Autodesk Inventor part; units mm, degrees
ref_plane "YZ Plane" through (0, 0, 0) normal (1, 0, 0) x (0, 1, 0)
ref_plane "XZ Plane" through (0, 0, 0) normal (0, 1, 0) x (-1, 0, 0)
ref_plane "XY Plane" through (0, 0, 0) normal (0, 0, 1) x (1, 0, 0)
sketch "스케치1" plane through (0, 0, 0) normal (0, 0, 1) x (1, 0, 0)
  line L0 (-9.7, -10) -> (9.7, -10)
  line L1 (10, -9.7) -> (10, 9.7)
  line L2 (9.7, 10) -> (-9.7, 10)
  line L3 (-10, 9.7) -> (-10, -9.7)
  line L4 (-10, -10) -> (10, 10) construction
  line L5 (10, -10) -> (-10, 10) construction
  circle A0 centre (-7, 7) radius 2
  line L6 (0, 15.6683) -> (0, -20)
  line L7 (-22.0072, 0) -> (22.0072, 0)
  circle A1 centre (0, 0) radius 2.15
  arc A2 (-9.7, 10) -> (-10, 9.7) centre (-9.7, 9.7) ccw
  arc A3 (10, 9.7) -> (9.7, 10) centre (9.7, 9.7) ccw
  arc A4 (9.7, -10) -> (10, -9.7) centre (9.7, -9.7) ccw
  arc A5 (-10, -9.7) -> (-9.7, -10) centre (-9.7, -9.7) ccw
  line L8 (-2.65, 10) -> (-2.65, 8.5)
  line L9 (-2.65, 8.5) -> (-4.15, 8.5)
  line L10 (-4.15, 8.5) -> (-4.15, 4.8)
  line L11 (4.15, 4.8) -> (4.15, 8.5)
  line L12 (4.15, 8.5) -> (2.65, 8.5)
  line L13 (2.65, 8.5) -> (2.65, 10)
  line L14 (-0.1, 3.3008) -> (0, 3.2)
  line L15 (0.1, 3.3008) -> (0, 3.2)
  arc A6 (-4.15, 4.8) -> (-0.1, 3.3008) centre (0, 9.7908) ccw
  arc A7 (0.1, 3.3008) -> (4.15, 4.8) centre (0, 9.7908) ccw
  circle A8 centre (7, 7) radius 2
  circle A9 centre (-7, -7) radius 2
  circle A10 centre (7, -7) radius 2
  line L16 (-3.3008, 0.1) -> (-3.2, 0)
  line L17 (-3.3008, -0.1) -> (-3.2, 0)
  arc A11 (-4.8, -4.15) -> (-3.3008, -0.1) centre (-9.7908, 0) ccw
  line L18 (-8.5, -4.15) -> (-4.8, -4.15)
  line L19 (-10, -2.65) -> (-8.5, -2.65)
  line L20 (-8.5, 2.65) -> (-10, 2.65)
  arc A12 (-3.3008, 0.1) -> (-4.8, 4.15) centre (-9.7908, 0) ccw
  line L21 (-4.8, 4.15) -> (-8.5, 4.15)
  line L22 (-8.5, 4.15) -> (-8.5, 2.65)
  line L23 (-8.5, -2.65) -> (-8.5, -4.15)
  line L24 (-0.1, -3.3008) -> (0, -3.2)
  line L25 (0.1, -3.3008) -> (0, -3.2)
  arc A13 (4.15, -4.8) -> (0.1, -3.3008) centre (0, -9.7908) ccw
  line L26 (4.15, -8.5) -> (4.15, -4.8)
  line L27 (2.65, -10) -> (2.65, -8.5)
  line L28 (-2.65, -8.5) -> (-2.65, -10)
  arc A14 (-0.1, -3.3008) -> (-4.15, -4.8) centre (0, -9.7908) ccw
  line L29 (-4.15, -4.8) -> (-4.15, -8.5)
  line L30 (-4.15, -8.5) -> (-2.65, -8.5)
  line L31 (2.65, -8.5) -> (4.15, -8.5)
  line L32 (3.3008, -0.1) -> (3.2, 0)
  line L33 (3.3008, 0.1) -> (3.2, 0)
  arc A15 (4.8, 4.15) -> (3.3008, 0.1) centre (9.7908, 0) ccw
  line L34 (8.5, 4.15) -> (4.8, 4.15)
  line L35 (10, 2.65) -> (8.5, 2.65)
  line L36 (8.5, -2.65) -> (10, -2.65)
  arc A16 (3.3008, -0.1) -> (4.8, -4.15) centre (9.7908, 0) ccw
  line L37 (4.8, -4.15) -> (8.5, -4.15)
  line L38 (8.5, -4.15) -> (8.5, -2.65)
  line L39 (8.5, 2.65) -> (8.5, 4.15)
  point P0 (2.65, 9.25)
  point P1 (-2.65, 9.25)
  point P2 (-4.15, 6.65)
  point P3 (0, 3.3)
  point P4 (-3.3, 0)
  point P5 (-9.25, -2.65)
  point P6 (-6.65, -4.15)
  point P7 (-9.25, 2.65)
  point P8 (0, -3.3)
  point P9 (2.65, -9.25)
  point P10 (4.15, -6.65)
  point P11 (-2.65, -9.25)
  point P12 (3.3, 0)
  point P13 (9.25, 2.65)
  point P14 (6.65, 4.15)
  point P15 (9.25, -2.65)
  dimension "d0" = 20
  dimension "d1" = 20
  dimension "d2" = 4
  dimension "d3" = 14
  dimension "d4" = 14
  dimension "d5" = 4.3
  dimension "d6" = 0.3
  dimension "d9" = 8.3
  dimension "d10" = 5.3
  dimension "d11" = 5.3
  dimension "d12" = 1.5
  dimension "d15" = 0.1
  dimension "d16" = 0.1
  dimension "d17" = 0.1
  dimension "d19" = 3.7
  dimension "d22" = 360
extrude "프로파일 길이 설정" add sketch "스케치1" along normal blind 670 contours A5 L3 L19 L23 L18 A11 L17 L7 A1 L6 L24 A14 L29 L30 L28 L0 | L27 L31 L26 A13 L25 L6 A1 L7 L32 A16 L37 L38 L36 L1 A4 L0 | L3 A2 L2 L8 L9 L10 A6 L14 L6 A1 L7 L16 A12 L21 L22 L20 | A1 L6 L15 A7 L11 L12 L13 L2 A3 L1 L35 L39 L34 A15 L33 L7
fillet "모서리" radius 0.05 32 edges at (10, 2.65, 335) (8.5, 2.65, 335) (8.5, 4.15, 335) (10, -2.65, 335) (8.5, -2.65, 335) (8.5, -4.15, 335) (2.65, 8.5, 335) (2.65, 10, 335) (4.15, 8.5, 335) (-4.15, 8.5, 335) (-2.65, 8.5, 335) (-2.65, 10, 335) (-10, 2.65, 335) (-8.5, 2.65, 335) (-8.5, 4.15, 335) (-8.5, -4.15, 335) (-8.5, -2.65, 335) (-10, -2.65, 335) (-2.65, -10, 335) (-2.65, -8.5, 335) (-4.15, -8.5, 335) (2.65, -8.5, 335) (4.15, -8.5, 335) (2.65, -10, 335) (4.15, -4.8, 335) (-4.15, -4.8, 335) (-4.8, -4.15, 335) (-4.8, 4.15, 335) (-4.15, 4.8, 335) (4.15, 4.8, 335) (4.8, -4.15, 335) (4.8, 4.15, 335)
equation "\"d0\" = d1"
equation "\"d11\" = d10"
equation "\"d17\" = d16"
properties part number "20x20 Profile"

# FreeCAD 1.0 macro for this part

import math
import FreeCAD as App
import Part
import Sketcher


def edges_at(feature, points):
    """Names of the edges that pass closest to the given points."""
    edges = feature.Shape.Edges
    near = lambda p: min(range(len(edges)), key=lambda i: edges[i].distToShape(Part.Vertex(*p))[0])
    return sorted({f"Edge{near(p) + 1}" for p in points})

doc = App.newDocument("Part")
params = doc.addObject("Spreadsheet::Sheet", "Params")
for row, (alias, value) in enumerate([
    ("sketch1_diameter", "4 mm"),
    ("sketch1_diameter2", "4.3 mm"),
    ("sketch1_radius", "0.3 mm"),
    ("sketch1_width", "1.5 mm"),
    ("sketch1_width2", "3.7 mm"),
    ("pad1_length", "670 mm"),
    ("fillet_radius", "0.05 mm"),
], start=1):
    params.set(f"A{row}", alias)
    params.set(f"B{row}", "=" + value)
    params.setAlias(f"B{row}", alias)

body = doc.addObject("PartDesign::Body", "Body")

# Sketch on XY plane
sketch1 = body.newObject("Sketcher::SketchObject", "Sketch")
sketch1.AttachmentSupport = (doc.getObject("XY_Plane"), [""])
sketch1.MapMode = "FlatFace"
sketch1.addGeometry([
    Part.ArcOfCircle(Part.Circle(App.Vector(-9.7, -9.7, 0), App.Vector(0, 0, 1), 0.3), math.radians(180), math.radians(270)),  # 0
    Part.LineSegment(App.Vector(-9.7, -10, 0), App.Vector(-2.65, -10, 0)),  # 1
    Part.LineSegment(App.Vector(-2.65, -10, 0), App.Vector(-2.65, -8.5, 0)),  # 2
    Part.LineSegment(App.Vector(-2.65, -8.5, 0), App.Vector(-4.15, -8.5, 0)),  # 3
    Part.LineSegment(App.Vector(-4.15, -8.5, 0), App.Vector(-4.15, -4.8, 0)),  # 4
    Part.ArcOfCircle(Part.Circle(App.Vector(0, -9.7908, 0), App.Vector(0, 0, 1), 6.490808), math.radians(90.882762), math.radians(129.74454)),  # 5
    Part.LineSegment(App.Vector(-0.1, -3.3008, 0), App.Vector(0, -3.2, 0)),  # 6
    Part.LineSegment(App.Vector(0, -3.2, 0), App.Vector(0.1, -3.3008, 0)),  # 7
    Part.ArcOfCircle(Part.Circle(App.Vector(0, -9.7908, 0), App.Vector(0, 0, 1), 6.49077), math.radians(50.25546), math.radians(89.117238)),  # 8
    Part.LineSegment(App.Vector(4.15, -4.8, 0), App.Vector(4.15, -8.5, 0)),  # 9
    Part.LineSegment(App.Vector(4.15, -8.5, 0), App.Vector(2.65, -8.5, 0)),  # 10
    Part.LineSegment(App.Vector(2.65, -8.5, 0), App.Vector(2.65, -10, 0)),  # 11
    Part.LineSegment(App.Vector(2.65, -10, 0), App.Vector(9.7, -10, 0)),  # 12
    Part.ArcOfCircle(Part.Circle(App.Vector(9.7, -9.7, 0), App.Vector(0, 0, 1), 0.3), math.radians(-90), math.radians(0)),  # 13
    Part.LineSegment(App.Vector(10, -9.7, 0), App.Vector(10, -2.65, 0)),  # 14
    Part.LineSegment(App.Vector(10, -2.65, 0), App.Vector(8.5, -2.65, 0)),  # 15
    Part.LineSegment(App.Vector(8.5, -2.65, 0), App.Vector(8.5, -4.15, 0)),  # 16
    Part.LineSegment(App.Vector(8.5, -4.15, 0), App.Vector(4.8, -4.15, 0)),  # 17
    Part.ArcOfCircle(Part.Circle(App.Vector(9.7908, 0, 0), App.Vector(0, 0, 1), 6.490808), math.radians(-179.117238), math.radians(-140.25546)),  # 18
    Part.LineSegment(App.Vector(3.3008, -0.1, 0), App.Vector(3.2, 0, 0)),  # 19
    Part.LineSegment(App.Vector(3.2, 0, 0), App.Vector(3.3008, 0.1, 0)),  # 20
    Part.ArcOfCircle(Part.Circle(App.Vector(9.7908, 0, 0), App.Vector(0, 0, 1), 6.49077), math.radians(140.25546), math.radians(179.117238)),  # 21
    Part.LineSegment(App.Vector(4.8, 4.15, 0), App.Vector(8.5, 4.15, 0)),  # 22
    Part.LineSegment(App.Vector(8.5, 4.15, 0), App.Vector(8.5, 2.65, 0)),  # 23
    Part.LineSegment(App.Vector(8.5, 2.65, 0), App.Vector(10, 2.65, 0)),  # 24
    Part.LineSegment(App.Vector(10, 2.65, 0), App.Vector(10, 9.7, 0)),  # 25
    Part.ArcOfCircle(Part.Circle(App.Vector(9.7, 9.7, 0), App.Vector(0, 0, 1), 0.3), math.radians(0), math.radians(90)),  # 26
    Part.LineSegment(App.Vector(9.7, 10, 0), App.Vector(2.65, 10, 0)),  # 27
    Part.LineSegment(App.Vector(2.65, 10, 0), App.Vector(2.65, 8.5, 0)),  # 28
    Part.LineSegment(App.Vector(2.65, 8.5, 0), App.Vector(4.15, 8.5, 0)),  # 29
    Part.LineSegment(App.Vector(4.15, 8.5, 0), App.Vector(4.15, 4.8, 0)),  # 30
    Part.ArcOfCircle(Part.Circle(App.Vector(0, 9.7908, 0), App.Vector(0, 0, 1), 6.490808), math.radians(-89.117238), math.radians(-50.25546)),  # 31
    Part.LineSegment(App.Vector(0.1, 3.3008, 0), App.Vector(0, 3.2, 0)),  # 32
    Part.LineSegment(App.Vector(0, 3.2, 0), App.Vector(-0.1, 3.3008, 0)),  # 33
    Part.ArcOfCircle(Part.Circle(App.Vector(0, 9.7908, 0), App.Vector(0, 0, 1), 6.49077), math.radians(-129.74454), math.radians(-90.882762)),  # 34
    Part.LineSegment(App.Vector(-4.15, 4.8, 0), App.Vector(-4.15, 8.5, 0)),  # 35
    Part.LineSegment(App.Vector(-4.15, 8.5, 0), App.Vector(-2.65, 8.5, 0)),  # 36
    Part.LineSegment(App.Vector(-2.65, 8.5, 0), App.Vector(-2.65, 10, 0)),  # 37
    Part.LineSegment(App.Vector(-2.65, 10, 0), App.Vector(-9.7, 10, 0)),  # 38
    Part.ArcOfCircle(Part.Circle(App.Vector(-9.7, 9.7, 0), App.Vector(0, 0, 1), 0.3), math.radians(90), math.radians(180)),  # 39
    Part.LineSegment(App.Vector(-10, 9.7, 0), App.Vector(-10, 2.65, 0)),  # 40
    Part.LineSegment(App.Vector(-10, 2.65, 0), App.Vector(-8.5, 2.65, 0)),  # 41
    Part.LineSegment(App.Vector(-8.5, 2.65, 0), App.Vector(-8.5, 4.15, 0)),  # 42
    Part.LineSegment(App.Vector(-8.5, 4.15, 0), App.Vector(-4.8, 4.15, 0)),  # 43
    Part.ArcOfCircle(Part.Circle(App.Vector(-9.7908, 0, 0), App.Vector(0, 0, 1), 6.490808), math.radians(0.882762), math.radians(39.74454)),  # 44
    Part.LineSegment(App.Vector(-3.3008, 0.1, 0), App.Vector(-3.2, 0, 0)),  # 45
    Part.LineSegment(App.Vector(-3.2, 0, 0), App.Vector(-3.3008, -0.1, 0)),  # 46
    Part.ArcOfCircle(Part.Circle(App.Vector(-9.7908, 0, 0), App.Vector(0, 0, 1), 6.49077), math.radians(-39.74454), math.radians(-0.882762)),  # 47
    Part.LineSegment(App.Vector(-4.8, -4.15, 0), App.Vector(-8.5, -4.15, 0)),  # 48
    Part.LineSegment(App.Vector(-8.5, -4.15, 0), App.Vector(-8.5, -2.65, 0)),  # 49
    Part.LineSegment(App.Vector(-8.5, -2.65, 0), App.Vector(-10, -2.65, 0)),  # 50
    Part.LineSegment(App.Vector(-10, -2.65, 0), App.Vector(-10, -9.7, 0)),  # 51
    Part.Circle(App.Vector(0, 0, 0), App.Vector(0, 0, 1), 2.15),  # 52
    Part.Circle(App.Vector(-7, -7, 0), App.Vector(0, 0, 1), 2),  # 53
    Part.Circle(App.Vector(-7, 7, 0), App.Vector(0, 0, 1), 2),  # 54
    Part.Circle(App.Vector(7, -7, 0), App.Vector(0, 0, 1), 2),  # 55
    Part.Circle(App.Vector(7, 7, 0), App.Vector(0, 0, 1), 2),  # 56
], False)
sketch1.addConstraint([
    Sketcher.Constraint("Tangent", 0, 2, 1, 1),
    Sketcher.Constraint("Coincident", 1, 2, 2, 1),
    Sketcher.Constraint("Coincident", 2, 2, 3, 1),
    Sketcher.Constraint("Coincident", 3, 2, 4, 1),
    Sketcher.Constraint("Coincident", 4, 2, 5, 2),
    Sketcher.Constraint("Coincident", 5, 1, 6, 1),
    Sketcher.Constraint("Coincident", 6, 2, 7, 1),
    Sketcher.Constraint("Coincident", 7, 2, 8, 2),
    Sketcher.Constraint("Coincident", 8, 1, 9, 1),
    Sketcher.Constraint("Coincident", 9, 2, 10, 1),
    Sketcher.Constraint("Coincident", 10, 2, 11, 1),
    Sketcher.Constraint("Coincident", 11, 2, 12, 1),
    Sketcher.Constraint("Tangent", 12, 2, 13, 1),
    Sketcher.Constraint("Tangent", 13, 2, 14, 1),
    Sketcher.Constraint("Coincident", 14, 2, 15, 1),
    Sketcher.Constraint("Coincident", 15, 2, 16, 1),
    Sketcher.Constraint("Coincident", 16, 2, 17, 1),
    Sketcher.Constraint("Coincident", 17, 2, 18, 2),
    Sketcher.Constraint("Coincident", 18, 1, 19, 1),
    Sketcher.Constraint("Coincident", 19, 2, 20, 1),
    Sketcher.Constraint("Coincident", 20, 2, 21, 2),
    Sketcher.Constraint("Coincident", 21, 1, 22, 1),
    Sketcher.Constraint("Coincident", 22, 2, 23, 1),
    Sketcher.Constraint("Coincident", 23, 2, 24, 1),
    Sketcher.Constraint("Coincident", 24, 2, 25, 1),
    Sketcher.Constraint("Tangent", 25, 2, 26, 1),
    Sketcher.Constraint("Tangent", 26, 2, 27, 1),
    Sketcher.Constraint("Coincident", 27, 2, 28, 1),
    Sketcher.Constraint("Coincident", 28, 2, 29, 1),
    Sketcher.Constraint("Coincident", 29, 2, 30, 1),
    Sketcher.Constraint("Coincident", 30, 2, 31, 2),
    Sketcher.Constraint("Coincident", 31, 1, 32, 1),
    Sketcher.Constraint("Coincident", 32, 2, 33, 1),
    Sketcher.Constraint("Coincident", 33, 2, 34, 2),
    Sketcher.Constraint("Coincident", 34, 1, 35, 1),
    Sketcher.Constraint("Coincident", 35, 2, 36, 1),
    Sketcher.Constraint("Coincident", 36, 2, 37, 1),
    Sketcher.Constraint("Coincident", 37, 2, 38, 1),
    Sketcher.Constraint("Tangent", 38, 2, 39, 1),
    Sketcher.Constraint("Tangent", 39, 2, 40, 1),
    Sketcher.Constraint("Coincident", 40, 2, 41, 1),
    Sketcher.Constraint("Coincident", 41, 2, 42, 1),
    Sketcher.Constraint("Coincident", 42, 2, 43, 1),
    Sketcher.Constraint("Coincident", 43, 2, 44, 2),
    Sketcher.Constraint("Coincident", 44, 1, 45, 1),
    Sketcher.Constraint("Coincident", 45, 2, 46, 1),
    Sketcher.Constraint("Coincident", 46, 2, 47, 2),
    Sketcher.Constraint("Coincident", 47, 1, 48, 1),
    Sketcher.Constraint("Coincident", 48, 2, 49, 1),
    Sketcher.Constraint("Coincident", 49, 2, 50, 1),
    Sketcher.Constraint("Coincident", 50, 2, 51, 1),
    Sketcher.Constraint("Tangent", 51, 2, 0, 1),
    Sketcher.Constraint("Horizontal", 1),
    Sketcher.Constraint("Vertical", 2),
    Sketcher.Constraint("Horizontal", 3),
    Sketcher.Constraint("Vertical", 4),
    Sketcher.Constraint("Vertical", 9),
    Sketcher.Constraint("Horizontal", 10),
    Sketcher.Constraint("Vertical", 11),
    Sketcher.Constraint("Horizontal", 12),
    Sketcher.Constraint("Vertical", 14),
    Sketcher.Constraint("Horizontal", 15),
    Sketcher.Constraint("Vertical", 16),
    Sketcher.Constraint("Horizontal", 17),
    Sketcher.Constraint("Horizontal", 22),
    Sketcher.Constraint("Vertical", 23),
    Sketcher.Constraint("Horizontal", 24),
    Sketcher.Constraint("Vertical", 25),
    Sketcher.Constraint("Horizontal", 27),
    Sketcher.Constraint("Vertical", 28),
    Sketcher.Constraint("Horizontal", 29),
    Sketcher.Constraint("Vertical", 30),
    Sketcher.Constraint("Vertical", 35),
    Sketcher.Constraint("Horizontal", 36),
    Sketcher.Constraint("Vertical", 37),
    Sketcher.Constraint("Horizontal", 38),
    Sketcher.Constraint("Vertical", 40),
    Sketcher.Constraint("Horizontal", 41),
    Sketcher.Constraint("Vertical", 42),
    Sketcher.Constraint("Horizontal", 43),
    Sketcher.Constraint("Horizontal", 48),
    Sketcher.Constraint("Vertical", 49),
    Sketcher.Constraint("Horizontal", 50),
    Sketcher.Constraint("Vertical", 51),
    Sketcher.Constraint("Coincident", 52, 3, -1, 1),
    Sketcher.Constraint("Coincident", 8, 3, 5, 3),
    Sketcher.Constraint("Coincident", 21, 3, 18, 3),
    Sketcher.Constraint("Coincident", 34, 3, 31, 3),
    Sketcher.Constraint("Coincident", 47, 3, 44, 3),
    Sketcher.Constraint("Equal", 5, 8),
    Sketcher.Constraint("Equal", 0, 13),
    Sketcher.Constraint("Equal", 8, 18),
    Sketcher.Constraint("Equal", 18, 21),
    Sketcher.Constraint("Equal", 13, 26),
    Sketcher.Constraint("Equal", 21, 31),
    Sketcher.Constraint("Equal", 31, 34),
    Sketcher.Constraint("Equal", 26, 39),
    Sketcher.Constraint("Equal", 34, 44),
    Sketcher.Constraint("Equal", 44, 47),
    Sketcher.Constraint("Equal", 53, 54),
    Sketcher.Constraint("Equal", 54, 55),
    Sketcher.Constraint("Equal", 55, 56),
    Sketcher.Constraint("Symmetric", 0, 3, 26, 3, -1, 1),
    Sketcher.Constraint("Symmetric", 5, 3, 31, 3, -1, 1),
    Sketcher.Constraint("Symmetric", 13, 3, 39, 3, -1, 1),
    Sketcher.Constraint("Symmetric", 18, 3, 44, 3, -1, 1),
    Sketcher.Constraint("Symmetric", 54, 3, 55, 3, -1, 1),
    Sketcher.Constraint("Symmetric", 53, 3, 56, 3, -1, 1),
    Sketcher.Constraint("Symmetric", 2, 2, 28, 2, -1, 1),
    Sketcher.Constraint("Symmetric", 6, 2, 32, 2, -1, 1),
    Sketcher.Constraint("Symmetric", 9, 2, 35, 2, -1, 1),
    Sketcher.Constraint("Symmetric", 15, 2, 41, 2, -1, 1),
    Sketcher.Constraint("Symmetric", 19, 2, 45, 2, -1, 1),
    Sketcher.Constraint("Symmetric", 22, 2, 48, 2, -1, 1),
    Sketcher.Constraint("Symmetric", 0, 3, 13, 3, -2),
    Sketcher.Constraint("Symmetric", 53, 3, 55, 3, -2),
    Sketcher.Constraint("Symmetric", 5, 1, 7, 2, -2),
    Sketcher.Constraint("Symmetric", 3, 2, 9, 2, -2),
    Sketcher.Constraint("Symmetric", 23, 2, 41, 2, -2),
    Sketcher.Constraint("Symmetric", 21, 1, 43, 2, -2),
    Sketcher.Constraint("PointOnObject", 6, 2, -2),
    Sketcher.Constraint("PointOnObject", 19, 2, -1),
    Sketcher.Constraint("Perpendicular", 6, 19),
    Sketcher.Constraint("Perpendicular", 7, 20),
    Sketcher.Constraint("Perpendicular", 19, 32),
    Sketcher.Constraint("Perpendicular", 20, 33),
    Sketcher.Constraint("Perpendicular", 32, 45),
    Sketcher.Constraint("Perpendicular", 33, 46),
    Sketcher.Constraint("Horizontal", 30, 2, 34, 1),
    Sketcher.Constraint("Horizontal", 17, 2, 47, 1),
    Sketcher.Constraint("Horizontal", 15, 2, 49, 2),
    Sketcher.Constraint("Vertical", 11, 2, 27, 2),
    Sketcher.Constraint("Vertical", 2, 2, 36, 2),
    Sketcher.Constraint("Equal", 10, 15),
    Sketcher.Constraint("Equal", 50, 2),
    Sketcher.Constraint("Equal", 48, 4),
    Sketcher.Constraint("Equal", 38, 14),
    Sketcher.Constraint("Equal", 11, 16),
    Sketcher.Constraint("Equal", 7, 19),
    Sketcher.Constraint("Diameter", 53, 4.0),
    Sketcher.Constraint("Diameter", 52, 4.3),
    Sketcher.Constraint("Radius", 0, 0.3),
    Sketcher.Constraint("DistanceX", 3, 2, 3, 1, 1.5),
    Sketcher.Constraint("DistanceX", 17, 2, 17, 1, 3.7),
    Sketcher.Constraint("DistanceX", 5, 1, -1, 1, 0.1),
    Sketcher.Constraint("DistanceX", 53, 3, -1, 1, 7.0),
    Sketcher.Constraint("DistanceY", 53, 3, -1, 1, 7.0),
    Sketcher.Constraint("DistanceY", 0, 2, -1, 1, 10.0),
    Sketcher.Constraint("DistanceX", -1, 1, 13, 2, 10.0),
    Sketcher.Constraint("DistanceX", 1, 1, 1, 2, 7.05),
    Sketcher.Constraint("DistanceY", 6, 2, -1, 1, 3.2),
    Sketcher.Constraint("Radius", 5, 6.4908),
])
sketch1.setExpression("Constraints[139]", "Params.sketch1_diameter")
sketch1.setExpression("Constraints[140]", "Params.sketch1_diameter2")
sketch1.setExpression("Constraints[141]", "Params.sketch1_radius")
sketch1.setExpression("Constraints[142]", "Params.sketch1_width")
sketch1.setExpression("Constraints[143]", "Params.sketch1_width2")
pad1 = body.newObject("PartDesign::Pad", "Pad")
pad1.Profile = sketch1
pad1.setExpression("Length", "Params.pad1_length")
doc.recompute()

fillet = body.newObject("PartDesign::Fillet", "Fillet")
fillet.Base = (pad1, edges_at(pad1, [
    (10, 2.65, 335),
    (8.5, 2.65, 335),
    (8.5, 4.15, 335),
    (10, -2.65, 335),
    (8.5, -2.65, 335),
    (8.5, -4.15, 335),
    (2.65, 8.5, 335),
    (2.65, 10, 335),
    (4.15, 8.5, 335),
    (-4.15, 8.5, 335),
    (-2.65, 8.5, 335),
    (-2.65, 10, 335),
    (-10, 2.65, 335),
    (-8.5, 2.65, 335),
    (-8.5, 4.15, 335),
    (-8.5, -4.15, 335),
    (-8.5, -2.65, 335),
    (-10, -2.65, 335),
    (-2.65, -10, 335),
    (-2.65, -8.5, 335),
    (-4.15, -8.5, 335),
    (2.65, -8.5, 335),
    (4.15, -8.5, 335),
    (2.65, -10, 335),
    (4.15, -4.8, 335),
    (-4.15, -4.8, 335),
    (-4.8, -4.15, 335),
    (-4.8, 4.15, 335),
    (-4.15, 4.8, 335),
    (4.15, 4.8, 335),
    (4.8, -4.15, 335),
    (4.8, 4.15, 335),
]))
fillet.setExpression("Radius", "Params.fillet_radius")

doc.recompute()
